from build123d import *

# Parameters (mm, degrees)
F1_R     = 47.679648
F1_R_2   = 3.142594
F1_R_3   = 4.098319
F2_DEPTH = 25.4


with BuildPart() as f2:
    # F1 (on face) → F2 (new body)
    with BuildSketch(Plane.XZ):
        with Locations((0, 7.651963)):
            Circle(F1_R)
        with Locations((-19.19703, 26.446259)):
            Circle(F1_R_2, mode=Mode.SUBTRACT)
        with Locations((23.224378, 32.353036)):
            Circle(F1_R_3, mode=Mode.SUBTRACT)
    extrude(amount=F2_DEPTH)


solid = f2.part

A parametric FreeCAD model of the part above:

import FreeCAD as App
import Part
import Sketcher

V = App.Vector
Q = App.Units.Quantity

doc = App.newDocument("Part")
body = doc.addObject("PartDesign::Body", "Body")

sketch1 = body.newObject("Sketcher::SketchObject", "Sketch")
sketch1.AttachmentSupport = (doc.getObject("XZ_Plane"), [""])
sketch1.MapMode = "FlatFace"
sketch1.addGeometry([
    Part.Circle(V(0, 7.7, 0), V(0, 0, 1), 47.7),
    Part.Circle(V(-19.2, 26.4, 0), V(0, 0, 1), 3.1),
    Part.Circle(V(23.2, 32.4, 0), V(0, 0, 1), 4.1),
], False)
sketch1.addConstraint([
    Sketcher.Constraint("PointOnObject", 0, 3, -2),
    Sketcher.Constraint("Diameter", 0, 95.359296),
    Sketcher.Constraint("Diameter", 1, 6.285188),
    Sketcher.Constraint("Diameter", 2, 8.196638),
    Sketcher.Constraint("DistanceX", 1, 3, -1, 1, 19.19703),
    Sketcher.Constraint("DistanceY", -1, 1, 1, 3, 26.446259),
    Sketcher.Constraint("DistanceX", -1, 1, 2, 3, 23.224378),
    Sketcher.Constraint("DistanceY", -1, 1, 0, 3, 7.651963),
    Sketcher.Constraint("DistanceY", -1, 1, 2, 3, 32.353036),
])
pad1 = body.newObject("PartDesign::Pad", "Pad")
pad1.Profile = sketch1
pad1.Length = Q("1 in")

doc.recompute()
